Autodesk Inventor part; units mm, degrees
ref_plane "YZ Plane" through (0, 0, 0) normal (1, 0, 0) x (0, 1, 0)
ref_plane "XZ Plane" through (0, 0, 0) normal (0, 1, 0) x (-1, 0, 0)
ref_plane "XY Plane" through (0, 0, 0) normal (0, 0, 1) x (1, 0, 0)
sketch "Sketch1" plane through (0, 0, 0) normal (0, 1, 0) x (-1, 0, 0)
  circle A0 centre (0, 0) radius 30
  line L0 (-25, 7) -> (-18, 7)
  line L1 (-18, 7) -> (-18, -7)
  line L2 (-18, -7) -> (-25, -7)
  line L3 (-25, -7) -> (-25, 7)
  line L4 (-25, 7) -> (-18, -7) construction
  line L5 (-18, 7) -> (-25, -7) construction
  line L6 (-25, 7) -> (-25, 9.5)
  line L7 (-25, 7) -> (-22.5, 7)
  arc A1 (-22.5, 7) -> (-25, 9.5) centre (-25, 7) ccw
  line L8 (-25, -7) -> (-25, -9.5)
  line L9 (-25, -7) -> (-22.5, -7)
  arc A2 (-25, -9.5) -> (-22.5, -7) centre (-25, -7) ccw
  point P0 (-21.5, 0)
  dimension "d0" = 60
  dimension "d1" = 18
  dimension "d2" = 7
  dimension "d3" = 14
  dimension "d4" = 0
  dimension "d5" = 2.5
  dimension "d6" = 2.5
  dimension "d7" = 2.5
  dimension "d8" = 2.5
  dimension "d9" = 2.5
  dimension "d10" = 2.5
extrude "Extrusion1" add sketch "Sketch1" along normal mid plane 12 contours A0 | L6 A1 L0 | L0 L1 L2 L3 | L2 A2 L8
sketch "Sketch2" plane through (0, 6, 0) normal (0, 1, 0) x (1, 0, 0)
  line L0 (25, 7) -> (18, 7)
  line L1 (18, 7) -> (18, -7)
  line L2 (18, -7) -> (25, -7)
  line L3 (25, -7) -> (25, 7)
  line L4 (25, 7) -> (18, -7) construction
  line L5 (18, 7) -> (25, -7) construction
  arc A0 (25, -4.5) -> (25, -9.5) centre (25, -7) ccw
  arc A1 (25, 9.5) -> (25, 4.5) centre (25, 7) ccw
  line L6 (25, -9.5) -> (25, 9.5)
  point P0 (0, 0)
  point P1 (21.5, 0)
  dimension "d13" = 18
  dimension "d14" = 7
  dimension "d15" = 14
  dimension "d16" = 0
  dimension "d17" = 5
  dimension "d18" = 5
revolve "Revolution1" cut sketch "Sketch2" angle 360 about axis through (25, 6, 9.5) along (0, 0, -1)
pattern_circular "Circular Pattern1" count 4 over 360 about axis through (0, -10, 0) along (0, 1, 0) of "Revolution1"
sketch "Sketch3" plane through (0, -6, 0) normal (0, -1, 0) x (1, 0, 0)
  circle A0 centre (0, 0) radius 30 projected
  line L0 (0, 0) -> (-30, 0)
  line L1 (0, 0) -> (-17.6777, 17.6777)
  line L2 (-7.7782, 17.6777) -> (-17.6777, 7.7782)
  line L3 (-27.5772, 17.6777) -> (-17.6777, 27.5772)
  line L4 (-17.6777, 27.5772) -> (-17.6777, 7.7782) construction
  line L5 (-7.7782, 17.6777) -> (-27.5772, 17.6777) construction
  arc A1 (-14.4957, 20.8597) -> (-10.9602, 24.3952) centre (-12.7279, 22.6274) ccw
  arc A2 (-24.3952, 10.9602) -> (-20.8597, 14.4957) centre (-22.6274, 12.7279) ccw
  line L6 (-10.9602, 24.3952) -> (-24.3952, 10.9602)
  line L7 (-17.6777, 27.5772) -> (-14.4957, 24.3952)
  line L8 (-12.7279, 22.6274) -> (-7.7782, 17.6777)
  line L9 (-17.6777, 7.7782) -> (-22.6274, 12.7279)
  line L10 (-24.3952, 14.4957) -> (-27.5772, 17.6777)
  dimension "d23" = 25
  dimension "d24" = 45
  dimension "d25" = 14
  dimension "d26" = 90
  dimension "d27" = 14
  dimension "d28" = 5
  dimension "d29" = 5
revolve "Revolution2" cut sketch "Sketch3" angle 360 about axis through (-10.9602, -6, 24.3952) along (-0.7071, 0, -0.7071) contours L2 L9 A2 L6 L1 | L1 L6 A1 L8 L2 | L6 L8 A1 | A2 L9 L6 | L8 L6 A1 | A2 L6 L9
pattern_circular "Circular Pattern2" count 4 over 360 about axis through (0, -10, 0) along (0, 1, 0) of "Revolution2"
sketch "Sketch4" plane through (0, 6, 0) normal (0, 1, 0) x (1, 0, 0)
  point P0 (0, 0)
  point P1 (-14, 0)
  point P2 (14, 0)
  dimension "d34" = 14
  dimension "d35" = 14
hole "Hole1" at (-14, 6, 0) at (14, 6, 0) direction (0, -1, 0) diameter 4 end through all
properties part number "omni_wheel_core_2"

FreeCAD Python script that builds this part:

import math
import FreeCAD as App
import Part
import Sketcher

V = App.Vector
Q = App.Units.Quantity

doc = App.newDocument("Part")
body = doc.addObject("PartDesign::Body", "Body")

# Sketch on XZ plane
sketch1 = body.newObject("Sketcher::SketchObject", "Sketch")
sketch1.AttachmentSupport = (doc.getObject("XZ_Plane"), [""])
sketch1.MapMode = "FlatFace"
sketch1.addGeometry(Part.Circle(V(0, 0, 0), V(0, 0, 1), 30), False)
sketch1.addConstraint(Sketcher.Constraint("Coincident", 0, 3, -1, 1))
sketch1.addConstraint(Sketcher.Constraint("Diameter", 0, Q("60 mm")))
pad1 = body.newObject("PartDesign::Pad", "Pad")
pad1.Profile = sketch1
pad1.Length = 12
pad1.Midplane = True

# Sketch on XZ plane
sketch2 = body.newObject("Sketcher::SketchObject", "Sketch001")
sketch2.AttachmentSupport = (doc.getObject("XZ_Plane"), [""])
sketch2.MapMode = "FlatFace"
sketch2.AttachmentOffset = App.Placement(V(0, 0, -6), App.Rotation())
sketch2.addGeometry(Part.ArcOfCircle(Part.Circle(V(25, -7, 0), V(0, 0, 1), 2.5), math.radians(180), math.radians(270)), False)
sketch2.addGeometry(Part.LineSegment(V(22.5, -7, 0), V(18, -7, 0)), False)
sketch2.addGeometry(Part.LineSegment(V(18, -7, 0), V(18, 7, 0)), False)
sketch2.addGeometry(Part.LineSegment(V(18, 7, 0), V(22.5, 7, 0)), False)
sketch2.addGeometry(Part.ArcOfCircle(Part.Circle(V(25, 7, 0), V(0, 0, 1), 2.5), math.radians(90), math.radians(180)), False)
sketch2.addGeometry(Part.LineSegment(V(25, 9.5, 0), V(25, -9.5, 0)), False)
sketch2.addGeometry(Part.LineSegment(V(25, 9.5, 0), V(25, -9.5, 0)), True)  # axis
sketch2.addConstraint(Sketcher.Constraint("Coincident", 0, 1, 1, 1))
sketch2.addConstraint(Sketcher.Constraint("Coincident", 1, 2, 2, 1))
sketch2.addConstraint(Sketcher.Constraint("Coincident", 2, 2, 3, 1))
sketch2.addConstraint(Sketcher.Constraint("Coincident", 3, 2, 4, 2))
sketch2.addConstraint(Sketcher.Constraint("Coincident", 4, 1, 5, 1))
sketch2.addConstraint(Sketcher.Constraint("Coincident", 5, 2, 0, 2))
sketch2.addConstraint(Sketcher.Constraint("Horizontal", 1))
sketch2.addConstraint(Sketcher.Constraint("Vertical", 2))
sketch2.addConstraint(Sketcher.Constraint("Horizontal", 3))
sketch2.addConstraint(Sketcher.Constraint("Vertical", 5))
sketch2.addConstraint(Sketcher.Constraint("Vertical", 6))
sketch2.addConstraint(Sketcher.Constraint("Coincident", 6, 1, 4, 1))
sketch2.addConstraint(Sketcher.Constraint("Equal", 0, 4))
sketch2.addConstraint(Sketcher.Constraint("Symmetric", 0, 3, 4, 3, -1))
sketch2.addConstraint(Sketcher.Constraint("Horizontal", 4, 3, 2, 2))
sketch2.addConstraint(Sketcher.Constraint("Vertical", 0, 3, 4, 1))
sketch2.addConstraint(Sketcher.Constraint("Equal", 5, 6))
sketch2.addConstraint(Sketcher.Constraint("Radius", 0, Q("2.5 mm")))
sketch2.addConstraint(Sketcher.Constraint("DistanceY", 2, 1, 2, 2, Q("14 mm")))
sketch2.addConstraint(Sketcher.Constraint("DistanceY", 0, 3, -1, 1, Q("7 mm")))
sketch2.addConstraint(Sketcher.Constraint("DistanceX", -1, 1, 1, 2, Q("18 mm")))
sketch2.addConstraint(Sketcher.Constraint("DistanceX", 1, 2, 0, 3, Q("7 mm")))
groove = body.newObject("PartDesign::Groove", "Groove")
groove.Profile = sketch2
groove.ReferenceAxis = (sketch2, ["Axis0"])
groove.Angle = 360
doc.recompute()

polarpattern = body.newObject("PartDesign::PolarPattern", "PolarPattern")
polarpattern.Originals = [groove]
polarpattern.Axis = (doc.getObject("Y_Axis"), [""])
polarpattern.Angle = 360
polarpattern.Occurrences = 4
body.Tip = polarpattern

# Sketch on XZ plane
sketch3 = body.newObject("Sketcher::SketchObject", "Sketch002")
sketch3.AttachmentSupport = (doc.getObject("XZ_Plane"), [""])
sketch3.MapMode = "FlatFace"
sketch3.AttachmentOffset = App.Placement(V(0, 0, 6), App.Rotation())
sketch3.addGeometry(Part.LineSegment(V(-17.7, 7.8, 0), V(-7.8, 17.7, 0)), False)
sketch3.addGeometry(Part.LineSegment(V(-7.8, 17.7, 0), V(-11, 20.9, 0)), False)
sketch3.addGeometry(Part.ArcOfCircle(Part.Circle(V(-12.7, 22.6, 0), V(0, 0, 1), 2.5), math.radians(-45), math.radians(45)), False)
sketch3.addGeometry(Part.LineSegment(V(-11, 24.4, 0), V(-24.4, 11, 0)), False)
sketch3.addGeometry(Part.ArcOfCircle(Part.Circle(V(-22.6, 12.7, 0), V(0, 0, 1), 2.5), math.radians(-135), math.radians(-45)), False)
sketch3.addGeometry(Part.LineSegment(V(-20.9, 11, 0), V(-17.7, 7.8, 0)), False)
sketch3.addGeometry(Part.LineSegment(V(-11, 24.4, 0), V(-24.4, 11, 0)), True)  # axis
sketch3.addConstraint(Sketcher.Constraint("Coincident", 0, 2, 1, 1))
sketch3.addConstraint(Sketcher.Constraint("Coincident", 1, 2, 2, 1))
sketch3.addConstraint(Sketcher.Constraint("Coincident", 2, 2, 3, 1))
sketch3.addConstraint(Sketcher.Constraint("Coincident", 3, 2, 4, 1))
sketch3.addConstraint(Sketcher.Constraint("Coincident", 4, 2, 5, 1))
sketch3.addConstraint(Sketcher.Constraint("Coincident", 5, 2, 0, 1))
sketch3.addConstraint(Sketcher.Constraint("Coincident", 6, 1, 2, 2))
sketch3.addConstraint(Sketcher.Constraint("Coincident", 6, 2, 3, 2))
sketch3.addConstraint(Sketcher.Constraint("Equal", 2, 4))
sketch3.addConstraint(Sketcher.Constraint("Perpendicular", 0, 1))
sketch3.addConstraint(Sketcher.Constraint("Perpendicular", 1, 3))
sketch3.addConstraint(Sketcher.Constraint("Perpendicular", 3, 5))
sketch3.addConstraint(Sketcher.Constraint("Horizontal", 3, 2, 4, 2))
sketch3.addConstraint(Sketcher.Constraint("Vertical", 1, 2, 2, 2))
sketch3.addConstraint(Sketcher.Constraint("Equal", 1, 5))
sketch3.addConstraint(Sketcher.Constraint("Radius", 2, Q("2.5 mm")))
sketch3.addConstraint(Sketcher.Constraint("Angle", 0, Q("45 deg")))
sketch3.addConstraint(Sketcher.Constraint("Distance", 0, Q("14 mm")))
sketch3.addConstraint(Sketcher.Constraint("Distance", 3, Q("19 mm")))
sketch3.addConstraint(Sketcher.Constraint("Distance", 1, Q("4.5 mm")))
sketch3.addConstraint(Sketcher.Constraint("DistanceX", 2, 3, -1, 1, Q("12.728 mm")))
sketch3.addConstraint(Sketcher.Constraint("DistanceY", -1, 1, 4, 3, Q("12.728 mm")))
groove2 = body.newObject("PartDesign::Groove", "Groove001")
groove2.Profile = sketch3
groove2.ReferenceAxis = (sketch3, ["Axis0"])
groove2.Angle = 360
doc.recompute()

polarpattern2 = body.newObject("PartDesign::PolarPattern", "PolarPattern001")
polarpattern2.Originals = [groove2]
polarpattern2.Axis = (doc.getObject("Y_Axis"), [""])
polarpattern2.Angle = 360
polarpattern2.Occurrences = 4
body.Tip = polarpattern2

# Sketch on XZ plane
sketch4 = body.newObject("Sketcher::SketchObject", "Sketch003")
sketch4.AttachmentSupport = (doc.getObject("XZ_Plane"), [""])
sketch4.MapMode = "FlatFace"
sketch4.AttachmentOffset = App.Placement(V(0, 0, -6), App.Rotation())
sketch4.addGeometry(Part.Circle(V(-14, 0, 0), V(0, 0, 1), 2), False)
sketch4.addGeometry(Part.Circle(V(14, 0, 0), V(0, 0, 1), 2), False)
sketch4.addConstraint(Sketcher.Constraint("Equal", 0, 1))
sketch4.addConstraint(Sketcher.Constraint("Symmetric", 0, 3, 1, 3, -1, 1))
sketch4.addConstraint(Sketcher.Constraint("PointOnObject", 0, 3, -1))
sketch4.addConstraint(Sketcher.Constraint("Diameter", 0, Q("4 mm")))
sketch4.addConstraint(Sketcher.Constraint("DistanceX", 0, 3, -1, 1, Q("14 mm")))
doc.recompute()
hole = body.newObject("PartDesign::Hole", "Hole")
hole.Profile = sketch4
hole.ThreadType = "None"
hole.Diameter = 4
hole.DepthType = "ThroughAll"
hole.Reversed = True

doc.recompute()
